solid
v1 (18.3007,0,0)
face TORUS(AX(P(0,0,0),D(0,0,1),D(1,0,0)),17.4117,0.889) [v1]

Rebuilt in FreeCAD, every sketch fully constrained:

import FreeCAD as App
import Part
import Sketcher

V = App.Vector
Q = App.Units.Quantity

doc = App.newDocument("Part")
body = doc.addObject("PartDesign::Body", "Body")

# Sketch on YZ plane
sketch1 = body.newObject("Sketcher::SketchObject", "Sketch")
sketch1.AttachmentSupport = (doc.getObject("YZ_Plane"), [""])
sketch1.MapMode = "FlatFace"
sketch1.addGeometry(Part.Circle(V(-17.4117, 0, 0), V(0, 0, 1), 0.889), False)
sketch1.addConstraint([
    Sketcher.Constraint("PointOnObject", 0, 3, -1),
    Sketcher.Constraint("Diameter", 0, Q("0.07 in")),
    Sketcher.Constraint("DistanceX", 0, 3, -1, 1, Q("0.6855 in")),
])
revolution = body.newObject("PartDesign::Revolution", "Revolution")
revolution.Profile = sketch1
revolution.ReferenceAxis = (sketch1, ["V_Axis"])
revolution.Angle = 360

doc.recompute()
